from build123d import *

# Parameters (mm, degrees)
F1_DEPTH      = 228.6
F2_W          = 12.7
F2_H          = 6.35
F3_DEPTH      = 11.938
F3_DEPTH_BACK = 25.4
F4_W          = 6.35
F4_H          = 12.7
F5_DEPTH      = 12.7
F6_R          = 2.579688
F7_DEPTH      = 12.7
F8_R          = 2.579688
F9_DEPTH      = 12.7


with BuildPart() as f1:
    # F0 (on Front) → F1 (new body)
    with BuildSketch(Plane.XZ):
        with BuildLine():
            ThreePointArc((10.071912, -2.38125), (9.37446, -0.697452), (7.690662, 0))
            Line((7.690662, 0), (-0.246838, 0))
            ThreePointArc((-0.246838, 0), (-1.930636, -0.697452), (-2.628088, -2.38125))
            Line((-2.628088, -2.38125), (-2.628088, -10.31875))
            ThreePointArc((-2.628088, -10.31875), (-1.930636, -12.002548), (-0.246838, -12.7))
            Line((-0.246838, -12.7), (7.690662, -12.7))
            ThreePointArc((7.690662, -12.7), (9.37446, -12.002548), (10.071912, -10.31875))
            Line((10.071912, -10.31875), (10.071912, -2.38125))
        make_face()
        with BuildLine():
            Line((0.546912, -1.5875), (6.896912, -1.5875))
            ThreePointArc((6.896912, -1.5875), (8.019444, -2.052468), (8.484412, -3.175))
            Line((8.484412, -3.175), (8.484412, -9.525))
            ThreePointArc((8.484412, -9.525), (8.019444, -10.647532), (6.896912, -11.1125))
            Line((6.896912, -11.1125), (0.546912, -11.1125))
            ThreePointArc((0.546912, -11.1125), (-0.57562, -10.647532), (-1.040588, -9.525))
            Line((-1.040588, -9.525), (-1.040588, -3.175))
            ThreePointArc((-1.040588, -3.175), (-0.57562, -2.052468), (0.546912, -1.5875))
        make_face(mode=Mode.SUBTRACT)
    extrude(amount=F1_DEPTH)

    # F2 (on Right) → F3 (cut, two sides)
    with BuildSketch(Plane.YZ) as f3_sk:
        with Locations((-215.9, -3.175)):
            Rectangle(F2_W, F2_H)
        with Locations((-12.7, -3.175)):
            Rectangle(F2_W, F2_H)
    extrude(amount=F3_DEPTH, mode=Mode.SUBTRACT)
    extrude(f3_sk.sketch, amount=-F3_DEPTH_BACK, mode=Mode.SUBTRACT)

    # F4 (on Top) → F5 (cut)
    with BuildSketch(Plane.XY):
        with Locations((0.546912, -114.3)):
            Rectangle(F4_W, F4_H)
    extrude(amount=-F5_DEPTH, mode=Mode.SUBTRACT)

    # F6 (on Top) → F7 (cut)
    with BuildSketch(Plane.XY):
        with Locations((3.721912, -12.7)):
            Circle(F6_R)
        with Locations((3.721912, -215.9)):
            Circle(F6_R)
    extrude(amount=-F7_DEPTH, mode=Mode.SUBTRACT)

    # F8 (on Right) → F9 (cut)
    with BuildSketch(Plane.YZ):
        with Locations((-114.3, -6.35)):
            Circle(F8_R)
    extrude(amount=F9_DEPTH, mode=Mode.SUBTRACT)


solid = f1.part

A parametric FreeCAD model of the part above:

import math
import FreeCAD as App
import Part
import Sketcher
Q = App.Units.Quantity


def add_polygon(sketch, points):
    """Adds a closed chain of lines whose ends are joined by coincident constraints."""
    first, n = sketch.GeometryCount, len(points)
    for a, b in zip(points, points[1:] + points[:1]):
        sketch.addGeometry(Part.LineSegment(App.Vector(*a, 0), App.Vector(*b, 0)), False)
    for i in range(n):
        sketch.addConstraint(Sketcher.Constraint("Coincident", first + i, 2, first + (i + 1) % n, 1))

doc = App.newDocument("Part")
params = doc.addObject("Spreadsheet::Sheet", "Params")
for row, (alias, value) in enumerate([
    ("sketch1_radius", "0.09375 in"),
    ("sketch1_radius2", "0.0625 in"),
    ("sketch1_width", "0.25 in"),
    ("pad1_length", "9 in"),
    ("sketch2_width", "0.5 in"),
    ("sketch2_height", "0.25 in"),
    ("sketch3_height", "0.5 in"),
    ("sketch3_width", "0.25 in"),
    ("pocket2_length", "0.5 in"),
    ("sketch4_diameter", "0.203125 in"),
    ("pocket3_length", "0.5 in"),
    ("sketch5_diameter", "0.203125 in"),
    ("pocket4_length", "0.5 in"),
], start=1):
    params.set(f"A{row}", alias)
    params.set(f"B{row}", "=" + value)
    params.setAlias(f"B{row}", alias)

body = doc.addObject("PartDesign::Body", "Body")

# Sketch on XZ plane
sketch1 = body.newObject("Sketcher::SketchObject", "Sketch")
sketch1.AttachmentSupport = (doc.getObject("XZ_Plane"), [""])
sketch1.MapMode = "FlatFace"
sketch1.addGeometry([
    Part.ArcOfCircle(Part.Circle(App.Vector(7.7, -2.4, 0), App.Vector(0, 0, 1), 2.4), math.radians(0), math.radians(90)),  # 0
    Part.LineSegment(App.Vector(7.7, 0, 0), App.Vector(-0.2, 0, 0)),  # 1
    Part.ArcOfCircle(Part.Circle(App.Vector(-0.2, -2.4, 0), App.Vector(0, 0, 1), 2.4), math.radians(90), math.radians(180)),  # 2
    Part.LineSegment(App.Vector(-2.6, -2.4, 0), App.Vector(-2.6, -10.3, 0)),  # 3
    Part.ArcOfCircle(Part.Circle(App.Vector(-0.2, -10.3, 0), App.Vector(0, 0, 1), 2.4), math.radians(-180), math.radians(-90)),  # 4
    Part.LineSegment(App.Vector(-0.2, -12.7, 0), App.Vector(7.7, -12.7, 0)),  # 5
    Part.ArcOfCircle(Part.Circle(App.Vector(7.7, -10.3, 0), App.Vector(0, 0, 1), 2.4), math.radians(-90), math.radians(0)),  # 6
    Part.LineSegment(App.Vector(10.1, -10.3, 0), App.Vector(10.1, -2.4, 0)),  # 7
    Part.ArcOfCircle(Part.Circle(App.Vector(0.5, -3.2, 0), App.Vector(0, 0, 1), 1.6), math.radians(90), math.radians(180)),  # 8
    Part.LineSegment(App.Vector(0.5, -1.6, 0), App.Vector(6.9, -1.6, 0)),  # 9
    Part.ArcOfCircle(Part.Circle(App.Vector(6.9, -3.2, 0), App.Vector(0, 0, 1), 1.6), math.radians(0), math.radians(90)),  # 10
    Part.LineSegment(App.Vector(8.5, -3.2, 0), App.Vector(8.5, -9.5, 0)),  # 11
    Part.ArcOfCircle(Part.Circle(App.Vector(6.9, -9.5, 0), App.Vector(0, 0, 1), 1.6), math.radians(-90), math.radians(0)),  # 12
    Part.LineSegment(App.Vector(6.9, -11.1, 0), App.Vector(0.5, -11.1, 0)),  # 13
    Part.ArcOfCircle(Part.Circle(App.Vector(0.5, -9.5, 0), App.Vector(0, 0, 1), 1.6), math.radians(-180), math.radians(-90)),  # 14
    Part.LineSegment(App.Vector(-1, -9.5, 0), App.Vector(-1, -3.2, 0)),  # 15
], False)
sketch1.addConstraint([
    Sketcher.Constraint("Tangent", 0, 2, 1, 1),
    Sketcher.Constraint("Tangent", 1, 2, 2, 1),
    Sketcher.Constraint("Tangent", 2, 2, 3, 1),
    Sketcher.Constraint("Tangent", 3, 2, 4, 1),
    Sketcher.Constraint("Tangent", 4, 2, 5, 1),
    Sketcher.Constraint("Tangent", 5, 2, 6, 1),
    Sketcher.Constraint("Tangent", 6, 2, 7, 1),
    Sketcher.Constraint("Tangent", 7, 2, 0, 1),
    Sketcher.Constraint("Tangent", 8, 1, 9, 1),
    Sketcher.Constraint("Tangent", 9, 2, 10, 2),
    Sketcher.Constraint("Tangent", 10, 1, 11, 1),
    Sketcher.Constraint("Tangent", 11, 2, 12, 2),
    Sketcher.Constraint("Tangent", 12, 1, 13, 1),
    Sketcher.Constraint("Tangent", 13, 2, 14, 2),
    Sketcher.Constraint("Tangent", 14, 1, 15, 1),
    Sketcher.Constraint("Tangent", 15, 2, 8, 2),
    Sketcher.Constraint("Horizontal", 1),
    Sketcher.Constraint("Vertical", 3),
    Sketcher.Constraint("Horizontal", 5),
    Sketcher.Constraint("Vertical", 7),
    Sketcher.Constraint("Horizontal", 9),
    Sketcher.Constraint("Vertical", 11),
    Sketcher.Constraint("Horizontal", 13),
    Sketcher.Constraint("Vertical", 15),
    Sketcher.Constraint("Equal", 0, 2),
    Sketcher.Constraint("Equal", 2, 4),
    Sketcher.Constraint("Equal", 4, 6),
    Sketcher.Constraint("Equal", 8, 10),
    Sketcher.Constraint("Equal", 10, 12),
    Sketcher.Constraint("Equal", 12, 14),
    Sketcher.Constraint("PointOnObject", 0, 2, -1),
    Sketcher.Constraint("Equal", 5, 3),
    Sketcher.Constraint("Equal", 13, 11),
    Sketcher.Constraint("Radius", 0, Q("0.09375 in")),
    Sketcher.Constraint("Radius", 8, Q("0.0625 in")),
    Sketcher.Constraint("DistanceX", 9, 1, 9, 2, Q("0.25 in")),
    Sketcher.Constraint("DistanceY", 4, 2, -1, 1, Q("0.5 in")),
    Sketcher.Constraint("DistanceY", 8, 3, -1, 1, Q("0.125 in")),
    Sketcher.Constraint("DistanceX", 2, 3, 8, 3, Q("0.03125 in")),
    Sketcher.Constraint("DistanceX", -1, 1, 0, 3, Q("7.690662 mm")),
])
sketch1.setExpression("Constraints[33]", "Params.sketch1_radius")
sketch1.setExpression("Constraints[34]", "Params.sketch1_radius2")
sketch1.setExpression("Constraints[35]", "Params.sketch1_width")
pad1 = body.newObject("PartDesign::Pad", "Pad")
pad1.Profile = sketch1
pad1.setExpression("Length", "Params.pad1_length")

# Sketch on YZ plane
sketch2 = body.newObject("Sketcher::SketchObject", "Sketch001")
sketch2.AttachmentSupport = (doc.getObject("YZ_Plane"), [""])
sketch2.MapMode = "FlatFace"
add_polygon(sketch2, [(-222, 0), (-222, -6), (-210, -6), (-210, 0)])  # lines 0-3
add_polygon(sketch2, [(-19, 0), (-19, -6), (-6, -6), (-6, 0)])  # lines 4-7
sketch2.addConstraint([
    Sketcher.Constraint("Vertical", 0),
    Sketcher.Constraint("Horizontal", 1),
    Sketcher.Constraint("Vertical", 2),
    Sketcher.Constraint("Horizontal", 3),
    Sketcher.Constraint("Vertical", 4),
    Sketcher.Constraint("Horizontal", 5),
    Sketcher.Constraint("Vertical", 6),
    Sketcher.Constraint("Horizontal", 7),
    Sketcher.Constraint("PointOnObject", 2, 2, -1),
    Sketcher.Constraint("PointOnObject", 6, 2, -1),
    Sketcher.Constraint("Horizontal", 1, 2, 4, 2),
    Sketcher.Constraint("Equal", 3, 5),
    Sketcher.Constraint("DistanceX", 1, 1, 1, 2, Q("0.5 in")),
    Sketcher.Constraint("DistanceX", 0, 2, 4, 2, Q("8 in")),
    Sketcher.Constraint("DistanceY", 0, 2, 0, 1, Q("0.25 in")),
    Sketcher.Constraint("DistanceX", 0, 2, -1, 1, Q("8.75 in")),
])
sketch2.setExpression("Constraints[20]", "Params.sketch2_width")
sketch2.setExpression("Constraints[22]", "Params.sketch2_height")
pocket1 = body.newObject("PartDesign::Pocket", "Pocket")
pocket1.Profile = sketch2
pocket1.Type = "ThroughAll"
pocket1.Midplane = True

# Sketch on XY plane
sketch3 = body.newObject("Sketcher::SketchObject", "Sketch002")
sketch3.AttachmentSupport = (doc.getObject("XY_Plane"), [""])
sketch3.MapMode = "FlatFace"
add_polygon(sketch3, [(-3, -108), (-3, -121), (4, -121), (4, -108)])  # lines 0-3
sketch3.addConstraint([
    Sketcher.Constraint("Vertical", 0),
    Sketcher.Constraint("Horizontal", 1),
    Sketcher.Constraint("Vertical", 2),
    Sketcher.Constraint("Horizontal", 3),
    Sketcher.Constraint("DistanceY", 0, 2, 0, 1, Q("0.5 in")),
    Sketcher.Constraint("DistanceX", 1, 1, 1, 2, Q("0.25 in")),
    Sketcher.Constraint("DistanceY", 0, 2, -1, 1, Q("4.75 in")),
    Sketcher.Constraint("DistanceX", 0, 2, -1, 1, Q("2.628088 mm")),
])
sketch3.setExpression("Constraints[8]", "Params.sketch3_height")
sketch3.setExpression("Constraints[9]", "Params.sketch3_width")
pocket2 = body.newObject("PartDesign::Pocket", "Pocket001")
pocket2.Profile = sketch3
pocket2.setExpression("Length", "Params.pocket2_length")

# Sketch on XY plane
sketch4 = body.newObject("Sketcher::SketchObject", "Sketch003")
sketch4.AttachmentSupport = (doc.getObject("XY_Plane"), [""])
sketch4.MapMode = "FlatFace"
sketch4.addGeometry([
    Part.Circle(App.Vector(3.7, -12.7, 0), App.Vector(0, 0, 1), 2.6),
    Part.Circle(App.Vector(3.7, -215.9, 0), App.Vector(0, 0, 1), 2.6),
], False)
sketch4.addConstraint([
    Sketcher.Constraint("Equal", 0, 1),
    Sketcher.Constraint("Vertical", 0, 3, 1, 3),
    Sketcher.Constraint("Diameter", 0, Q("0.203125 in")),
    Sketcher.Constraint("DistanceY", 1, 3, 0, 3, Q("8 in")),
    Sketcher.Constraint("DistanceY", 0, 3, -1, 1, Q("0.5 in")),
    Sketcher.Constraint("DistanceX", -1, 1, 0, 3, Q("3.721912 mm")),
])
sketch4.setExpression("Constraints[2]", "Params.sketch4_diameter")
pocket3 = body.newObject("PartDesign::Pocket", "Pocket002")
pocket3.Profile = sketch4
pocket3.setExpression("Length", "Params.pocket3_length")

# Sketch on YZ plane
sketch5 = body.newObject("Sketcher::SketchObject", "Sketch004")
sketch5.AttachmentSupport = (doc.getObject("YZ_Plane"), [""])
sketch5.MapMode = "FlatFace"
sketch5.addGeometry(Part.Circle(App.Vector(-114.3, -6.3, 0), App.Vector(0, 0, 1), 2.6), False)
sketch5.addConstraint([
    Sketcher.Constraint("Diameter", 0, Q("0.203125 in")),
    Sketcher.Constraint("DistanceX", 0, 3, -1, 1, Q("4.5 in")),
    Sketcher.Constraint("DistanceY", 0, 3, -1, 1, Q("0.25 in")),
])
sketch5.setExpression("Constraints[0]", "Params.sketch5_diameter")
pocket4 = body.newObject("PartDesign::Pocket", "Pocket003")
pocket4.Profile = sketch5
pocket4.setExpression("Length", "Params.pocket4_length")
pocket4.Reversed = True

doc.recompute()
